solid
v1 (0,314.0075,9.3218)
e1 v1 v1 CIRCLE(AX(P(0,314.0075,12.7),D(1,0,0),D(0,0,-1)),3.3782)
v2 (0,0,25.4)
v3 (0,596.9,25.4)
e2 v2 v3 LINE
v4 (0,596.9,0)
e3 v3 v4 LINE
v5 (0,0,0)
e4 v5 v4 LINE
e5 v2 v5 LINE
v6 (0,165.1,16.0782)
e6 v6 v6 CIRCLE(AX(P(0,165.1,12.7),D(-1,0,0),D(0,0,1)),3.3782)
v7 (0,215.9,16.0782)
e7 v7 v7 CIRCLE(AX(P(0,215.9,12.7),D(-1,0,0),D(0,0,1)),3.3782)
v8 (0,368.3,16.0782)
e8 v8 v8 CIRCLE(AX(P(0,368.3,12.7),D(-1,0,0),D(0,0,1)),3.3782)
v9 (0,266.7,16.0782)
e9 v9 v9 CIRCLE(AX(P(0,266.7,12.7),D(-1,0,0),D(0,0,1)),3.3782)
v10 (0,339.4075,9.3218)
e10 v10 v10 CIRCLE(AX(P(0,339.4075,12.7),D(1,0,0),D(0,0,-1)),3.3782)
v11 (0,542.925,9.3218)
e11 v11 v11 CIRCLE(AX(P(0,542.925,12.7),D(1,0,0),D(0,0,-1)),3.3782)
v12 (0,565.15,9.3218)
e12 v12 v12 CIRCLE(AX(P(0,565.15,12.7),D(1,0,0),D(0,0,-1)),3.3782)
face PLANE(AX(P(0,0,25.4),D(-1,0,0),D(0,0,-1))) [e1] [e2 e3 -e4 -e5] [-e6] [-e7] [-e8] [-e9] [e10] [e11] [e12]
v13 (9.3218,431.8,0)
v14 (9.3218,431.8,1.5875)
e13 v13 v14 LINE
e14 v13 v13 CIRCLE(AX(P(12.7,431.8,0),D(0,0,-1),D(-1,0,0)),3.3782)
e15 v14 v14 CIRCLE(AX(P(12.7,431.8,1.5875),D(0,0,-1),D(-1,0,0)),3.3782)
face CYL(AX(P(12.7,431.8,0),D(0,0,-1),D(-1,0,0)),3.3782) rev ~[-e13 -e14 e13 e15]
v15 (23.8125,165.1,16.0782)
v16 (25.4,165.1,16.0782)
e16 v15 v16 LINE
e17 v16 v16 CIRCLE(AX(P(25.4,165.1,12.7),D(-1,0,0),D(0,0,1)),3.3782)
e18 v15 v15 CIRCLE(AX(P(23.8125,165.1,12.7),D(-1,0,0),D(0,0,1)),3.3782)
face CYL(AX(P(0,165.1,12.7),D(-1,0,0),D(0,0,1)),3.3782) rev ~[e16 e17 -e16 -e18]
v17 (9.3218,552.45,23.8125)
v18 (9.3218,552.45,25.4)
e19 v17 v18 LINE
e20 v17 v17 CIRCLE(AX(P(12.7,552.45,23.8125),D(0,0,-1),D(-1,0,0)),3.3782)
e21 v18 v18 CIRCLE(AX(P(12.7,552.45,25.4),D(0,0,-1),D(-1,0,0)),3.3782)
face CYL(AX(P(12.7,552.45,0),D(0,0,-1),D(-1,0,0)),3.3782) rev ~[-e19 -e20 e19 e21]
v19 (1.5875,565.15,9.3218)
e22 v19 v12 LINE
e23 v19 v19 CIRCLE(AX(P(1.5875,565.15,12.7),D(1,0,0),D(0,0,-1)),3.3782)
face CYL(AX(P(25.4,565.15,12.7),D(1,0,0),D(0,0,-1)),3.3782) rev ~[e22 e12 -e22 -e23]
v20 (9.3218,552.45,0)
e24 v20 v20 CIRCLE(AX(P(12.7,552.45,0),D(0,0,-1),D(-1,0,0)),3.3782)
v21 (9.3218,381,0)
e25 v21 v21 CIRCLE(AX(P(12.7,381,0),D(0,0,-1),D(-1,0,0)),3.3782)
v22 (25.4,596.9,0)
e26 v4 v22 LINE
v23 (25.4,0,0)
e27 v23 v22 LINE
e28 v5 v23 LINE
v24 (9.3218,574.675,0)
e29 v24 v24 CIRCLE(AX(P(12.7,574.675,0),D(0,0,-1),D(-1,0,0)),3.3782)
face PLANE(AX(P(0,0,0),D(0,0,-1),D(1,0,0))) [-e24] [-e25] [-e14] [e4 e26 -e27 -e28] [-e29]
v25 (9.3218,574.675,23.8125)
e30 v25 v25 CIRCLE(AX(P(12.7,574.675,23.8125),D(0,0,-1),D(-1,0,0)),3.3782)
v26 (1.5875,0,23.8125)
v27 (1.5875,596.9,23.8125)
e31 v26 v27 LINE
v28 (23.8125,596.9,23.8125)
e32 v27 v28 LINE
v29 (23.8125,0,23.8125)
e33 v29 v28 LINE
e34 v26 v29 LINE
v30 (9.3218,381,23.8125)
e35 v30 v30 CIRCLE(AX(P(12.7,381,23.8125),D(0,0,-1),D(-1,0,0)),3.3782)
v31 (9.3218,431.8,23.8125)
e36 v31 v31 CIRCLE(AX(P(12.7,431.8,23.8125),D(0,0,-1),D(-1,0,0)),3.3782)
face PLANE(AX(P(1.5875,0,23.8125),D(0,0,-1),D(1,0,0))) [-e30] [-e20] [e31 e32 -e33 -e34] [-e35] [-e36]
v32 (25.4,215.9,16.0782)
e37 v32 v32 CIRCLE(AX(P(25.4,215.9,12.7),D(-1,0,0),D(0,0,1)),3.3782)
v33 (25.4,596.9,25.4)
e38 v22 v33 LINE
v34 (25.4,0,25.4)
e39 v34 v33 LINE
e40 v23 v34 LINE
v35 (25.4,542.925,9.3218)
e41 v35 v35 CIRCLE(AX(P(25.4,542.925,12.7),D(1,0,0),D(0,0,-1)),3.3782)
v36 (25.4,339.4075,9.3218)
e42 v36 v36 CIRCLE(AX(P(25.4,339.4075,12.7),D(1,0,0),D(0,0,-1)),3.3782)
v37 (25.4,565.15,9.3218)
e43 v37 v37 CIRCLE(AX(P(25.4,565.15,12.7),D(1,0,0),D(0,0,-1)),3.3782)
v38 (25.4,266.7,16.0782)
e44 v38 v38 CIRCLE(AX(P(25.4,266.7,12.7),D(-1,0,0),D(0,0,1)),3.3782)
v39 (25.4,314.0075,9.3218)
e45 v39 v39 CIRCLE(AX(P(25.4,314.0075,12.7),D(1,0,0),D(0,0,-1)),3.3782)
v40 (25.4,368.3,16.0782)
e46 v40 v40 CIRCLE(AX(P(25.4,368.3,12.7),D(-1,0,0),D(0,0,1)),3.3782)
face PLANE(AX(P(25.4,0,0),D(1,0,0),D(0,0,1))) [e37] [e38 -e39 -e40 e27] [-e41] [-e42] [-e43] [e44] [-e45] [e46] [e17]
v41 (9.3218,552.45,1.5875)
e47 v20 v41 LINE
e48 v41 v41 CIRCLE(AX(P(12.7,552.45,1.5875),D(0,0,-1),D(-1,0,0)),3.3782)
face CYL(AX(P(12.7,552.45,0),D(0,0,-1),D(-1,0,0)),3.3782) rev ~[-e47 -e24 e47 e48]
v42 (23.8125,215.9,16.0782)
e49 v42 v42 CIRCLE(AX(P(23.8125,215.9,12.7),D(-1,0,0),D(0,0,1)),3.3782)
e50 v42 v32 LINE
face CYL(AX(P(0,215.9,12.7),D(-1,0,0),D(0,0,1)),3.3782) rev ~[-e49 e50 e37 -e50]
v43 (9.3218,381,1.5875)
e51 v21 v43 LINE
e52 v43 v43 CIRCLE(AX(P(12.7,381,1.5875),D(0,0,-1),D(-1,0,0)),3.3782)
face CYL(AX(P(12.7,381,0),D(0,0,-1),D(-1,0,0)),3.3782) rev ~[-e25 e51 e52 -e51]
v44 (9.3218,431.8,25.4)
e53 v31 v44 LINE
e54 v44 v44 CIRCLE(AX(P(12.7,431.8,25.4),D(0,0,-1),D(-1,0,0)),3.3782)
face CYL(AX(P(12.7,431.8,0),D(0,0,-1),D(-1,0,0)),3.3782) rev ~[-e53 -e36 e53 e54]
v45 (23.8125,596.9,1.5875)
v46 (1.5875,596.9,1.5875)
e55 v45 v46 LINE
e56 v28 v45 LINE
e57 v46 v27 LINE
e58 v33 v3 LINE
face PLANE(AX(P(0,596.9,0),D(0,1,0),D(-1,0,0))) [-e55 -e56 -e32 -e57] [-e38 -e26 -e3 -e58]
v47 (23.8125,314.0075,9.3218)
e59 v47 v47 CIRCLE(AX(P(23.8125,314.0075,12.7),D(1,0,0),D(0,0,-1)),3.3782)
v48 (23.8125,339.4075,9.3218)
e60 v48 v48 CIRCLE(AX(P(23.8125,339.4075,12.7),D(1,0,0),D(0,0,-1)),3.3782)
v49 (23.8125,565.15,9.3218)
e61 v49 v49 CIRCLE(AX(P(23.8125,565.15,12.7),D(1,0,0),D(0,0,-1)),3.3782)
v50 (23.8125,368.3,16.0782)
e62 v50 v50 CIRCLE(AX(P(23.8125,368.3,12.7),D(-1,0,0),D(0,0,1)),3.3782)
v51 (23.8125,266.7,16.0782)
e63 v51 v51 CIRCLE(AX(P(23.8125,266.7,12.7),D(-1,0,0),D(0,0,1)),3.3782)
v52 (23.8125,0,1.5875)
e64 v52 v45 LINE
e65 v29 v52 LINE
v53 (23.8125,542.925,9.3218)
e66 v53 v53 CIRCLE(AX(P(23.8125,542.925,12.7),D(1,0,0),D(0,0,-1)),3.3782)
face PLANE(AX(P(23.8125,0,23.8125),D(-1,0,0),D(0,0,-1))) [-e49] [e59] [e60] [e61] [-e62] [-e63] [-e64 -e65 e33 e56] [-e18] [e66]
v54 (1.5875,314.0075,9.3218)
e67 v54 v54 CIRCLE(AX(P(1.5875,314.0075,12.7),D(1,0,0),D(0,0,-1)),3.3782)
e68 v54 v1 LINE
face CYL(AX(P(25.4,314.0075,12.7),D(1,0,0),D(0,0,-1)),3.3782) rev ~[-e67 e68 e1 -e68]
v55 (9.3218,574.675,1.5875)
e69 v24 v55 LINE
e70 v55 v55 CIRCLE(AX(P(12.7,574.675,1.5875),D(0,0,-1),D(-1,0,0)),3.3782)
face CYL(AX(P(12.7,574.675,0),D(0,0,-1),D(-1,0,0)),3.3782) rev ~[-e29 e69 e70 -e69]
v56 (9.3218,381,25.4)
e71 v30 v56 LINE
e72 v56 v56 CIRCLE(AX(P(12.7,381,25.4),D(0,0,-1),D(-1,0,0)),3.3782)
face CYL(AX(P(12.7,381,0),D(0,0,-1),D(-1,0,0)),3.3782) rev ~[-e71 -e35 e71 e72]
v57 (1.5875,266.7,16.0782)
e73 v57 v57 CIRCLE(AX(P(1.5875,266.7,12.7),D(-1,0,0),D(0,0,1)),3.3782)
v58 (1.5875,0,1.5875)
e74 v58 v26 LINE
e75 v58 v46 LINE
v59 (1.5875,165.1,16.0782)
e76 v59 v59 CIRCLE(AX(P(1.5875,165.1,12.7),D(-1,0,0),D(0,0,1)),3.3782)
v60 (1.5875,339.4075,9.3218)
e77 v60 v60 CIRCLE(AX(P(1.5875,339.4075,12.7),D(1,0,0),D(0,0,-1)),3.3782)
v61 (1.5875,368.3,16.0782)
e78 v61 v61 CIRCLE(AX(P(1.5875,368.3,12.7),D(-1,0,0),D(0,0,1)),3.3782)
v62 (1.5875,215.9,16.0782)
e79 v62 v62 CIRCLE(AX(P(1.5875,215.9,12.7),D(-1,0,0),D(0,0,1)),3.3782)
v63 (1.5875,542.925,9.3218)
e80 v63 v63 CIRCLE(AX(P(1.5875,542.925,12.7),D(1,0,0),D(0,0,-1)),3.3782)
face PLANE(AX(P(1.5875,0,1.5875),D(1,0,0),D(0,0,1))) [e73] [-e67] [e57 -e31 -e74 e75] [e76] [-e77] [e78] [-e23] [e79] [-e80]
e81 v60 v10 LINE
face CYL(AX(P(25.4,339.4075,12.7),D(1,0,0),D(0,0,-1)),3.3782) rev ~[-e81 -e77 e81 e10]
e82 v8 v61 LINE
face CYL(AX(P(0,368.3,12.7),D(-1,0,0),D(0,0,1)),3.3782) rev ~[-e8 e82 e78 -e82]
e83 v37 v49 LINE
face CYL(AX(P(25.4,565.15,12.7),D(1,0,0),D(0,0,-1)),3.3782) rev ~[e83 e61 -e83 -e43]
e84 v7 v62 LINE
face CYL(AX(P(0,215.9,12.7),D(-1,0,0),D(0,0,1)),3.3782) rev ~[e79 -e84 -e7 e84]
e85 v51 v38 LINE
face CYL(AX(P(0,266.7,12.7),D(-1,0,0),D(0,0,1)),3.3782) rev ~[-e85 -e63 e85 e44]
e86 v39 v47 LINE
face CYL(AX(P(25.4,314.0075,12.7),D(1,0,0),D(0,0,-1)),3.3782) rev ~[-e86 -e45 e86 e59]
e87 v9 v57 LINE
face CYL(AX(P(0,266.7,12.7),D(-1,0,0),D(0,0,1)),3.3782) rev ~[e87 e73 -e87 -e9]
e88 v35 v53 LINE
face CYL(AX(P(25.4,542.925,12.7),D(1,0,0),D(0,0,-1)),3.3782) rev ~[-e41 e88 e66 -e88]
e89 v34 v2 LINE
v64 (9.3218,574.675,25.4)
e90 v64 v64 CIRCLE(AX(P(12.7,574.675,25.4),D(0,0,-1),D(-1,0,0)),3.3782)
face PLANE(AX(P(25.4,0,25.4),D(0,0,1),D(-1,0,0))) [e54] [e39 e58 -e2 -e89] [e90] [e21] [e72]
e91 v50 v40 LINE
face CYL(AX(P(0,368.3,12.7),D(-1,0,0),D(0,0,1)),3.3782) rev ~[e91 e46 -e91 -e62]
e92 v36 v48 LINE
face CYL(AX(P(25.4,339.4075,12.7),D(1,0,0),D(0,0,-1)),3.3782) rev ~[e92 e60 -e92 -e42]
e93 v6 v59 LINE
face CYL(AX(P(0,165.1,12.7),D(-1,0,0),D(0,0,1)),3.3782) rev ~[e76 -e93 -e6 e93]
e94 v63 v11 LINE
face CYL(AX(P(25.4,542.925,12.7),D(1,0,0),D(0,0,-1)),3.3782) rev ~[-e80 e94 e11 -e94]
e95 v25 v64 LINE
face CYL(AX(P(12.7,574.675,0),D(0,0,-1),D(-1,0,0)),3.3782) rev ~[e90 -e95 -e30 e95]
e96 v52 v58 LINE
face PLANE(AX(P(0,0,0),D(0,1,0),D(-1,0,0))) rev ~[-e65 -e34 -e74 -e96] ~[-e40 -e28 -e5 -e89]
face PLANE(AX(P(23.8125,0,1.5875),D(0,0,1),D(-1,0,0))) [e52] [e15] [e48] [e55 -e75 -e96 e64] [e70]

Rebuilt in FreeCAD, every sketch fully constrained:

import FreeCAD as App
import Part
import Sketcher

V = App.Vector
Q = App.Units.Quantity


def add_polygon(sketch, points):
    """Adds a closed chain of lines whose ends are joined by coincident constraints."""
    first, n = sketch.GeometryCount, len(points)
    for a, b in zip(points, points[1:] + points[:1]):
        sketch.addGeometry(Part.LineSegment(App.Vector(*a, 0), App.Vector(*b, 0)), False)
    for i in range(n):
        sketch.addConstraint(Sketcher.Constraint("Coincident", first + i, 2, first + (i + 1) % n, 1))

doc = App.newDocument("Part")
params = doc.addObject("Spreadsheet::Sheet", "Params")
for row, (alias, value) in enumerate([
    ("sketch1_width", "1 in"),
    ("pad1_length", "23.5 in"),
    ("sketch2_diameter", "0.266 in"),
    ("pocket1_length", "1 in"),
    ("sketch3_diameter", "0.266 in"),
    ("pocket2_length", "1 in"),
    ("sketch4_diameter", "0.266 in"),
    ("pocket3_length", "1 in"),
    ("sketch5_diameter", "0.266 in"),
    ("pocket4_length", "1.5 in"),
    ("sketch6_diameter", "0.266 in"),
    ("pocket5_length", "1 in"),
], start=1):
    params.set(f"A{row}", alias)
    params.set(f"B{row}", "=" + value)
    params.setAlias(f"B{row}", alias)

body = doc.addObject("PartDesign::Body", "Body")

# Sketch on XZ plane
sketch1 = doc.addObject("Sketcher::SketchObject", "Sketch")
body.addObject(sketch1)
sketch1.AttachmentSupport = (doc.XZ_Plane, [""])
sketch1.MapMode = "FlatFace"
add_polygon(sketch1, [(25, 0), (0, 0), (0, 25), (25, 25)])  # lines 0-3
add_polygon(sketch1, [(24, 24), (2, 24), (2, 2), (24, 2)])  # lines 4-7
sketch1.addConstraint(Sketcher.Constraint("Horizontal", 0))
sketch1.addConstraint(Sketcher.Constraint("Vertical", 1))
sketch1.addConstraint(Sketcher.Constraint("Horizontal", 2))
sketch1.addConstraint(Sketcher.Constraint("Vertical", 3))
sketch1.addConstraint(Sketcher.Constraint("Horizontal", 4))
sketch1.addConstraint(Sketcher.Constraint("Vertical", 5))
sketch1.addConstraint(Sketcher.Constraint("Horizontal", 6))
sketch1.addConstraint(Sketcher.Constraint("Vertical", 7))
sketch1.addConstraint(Sketcher.Constraint("Coincident", 0, 2, -1, 1))
sketch1.addConstraint(Sketcher.Constraint("Equal", 2, 1))
sketch1.addConstraint(Sketcher.Constraint("Equal", 6, 5))
sketch1.addConstraint(Sketcher.Constraint("DistanceX", 0, 2, 0, 1, Q("1 in")))
sketch1.addConstraint(Sketcher.Constraint("DistanceX", -1, 1, 4, 2, Q("0.0625 in")))
sketch1.addConstraint(Sketcher.Constraint("DistanceY", -1, 1, 5, 2, Q("0.0625 in")))
sketch1.addConstraint(Sketcher.Constraint("DistanceY", 4, 2, 1, 2, Q("0.0625 in")))
sketch1.setExpression("Constraints[19]", "Params.sketch1_width")
pad1 = doc.addObject("PartDesign::Pad", "Pad")
body.addObject(pad1)
pad1.Profile = sketch1
pad1.setExpression("Length", "Params.pad1_length")
pad1.Reversed = True

# Sketch on XY plane
sketch2 = doc.addObject("Sketcher::SketchObject", "Sketch001")
body.addObject(sketch2)
sketch2.AttachmentSupport = (doc.XY_Plane, [""])
sketch2.MapMode = "FlatFace"
sketch2.addGeometry(Part.Circle(V(12.7, 552.5, 0), V(0, 0, 1), 3.4), False)
sketch2.addGeometry(Part.Circle(V(12.7, 574.7, 0), V(0, 0, 1), 3.4), False)
sketch2.addConstraint(Sketcher.Constraint("Equal", 0, 1))
sketch2.addConstraint(Sketcher.Constraint("Vertical", 0, 3, 1, 3))
sketch2.addConstraint(Sketcher.Constraint("Diameter", 0, Q("0.266 in")))
sketch2.addConstraint(Sketcher.Constraint("DistanceX", -1, 1, 0, 3, Q("0.5 in")))
sketch2.addConstraint(Sketcher.Constraint("DistanceY", -1, 1, 0, 3, Q("21.75 in")))
sketch2.addConstraint(Sketcher.Constraint("DistanceY", -1, 1, 1, 3, Q("22.625 in")))
sketch2.setExpression("Constraints[2]", "Params.sketch2_diameter")
pocket1 = doc.addObject("PartDesign::Pocket", "Pocket")
body.addObject(pocket1)
pocket1.Profile = sketch2
pocket1.setExpression("Length", "Params.pocket1_length")
pocket1.Reversed = True

# Sketch on YZ plane
sketch3 = doc.addObject("Sketcher::SketchObject", "Sketch002")
body.addObject(sketch3)
sketch3.AttachmentSupport = (doc.YZ_Plane, [""])
sketch3.MapMode = "FlatFace"
sketch3.AttachmentOffset = App.Placement(V(0, 0, 1 * 25.4), App.Rotation())
sketch3.addGeometry(Part.Circle(V(565.1, 12.7, 0), V(0, 0, 1), 3.4), False)
sketch3.addGeometry(Part.Circle(V(542.9, 12.7, 0), V(0, 0, 1), 3.4), False)
sketch3.addConstraint(Sketcher.Constraint("Equal", 0, 1))
sketch3.addConstraint(Sketcher.Constraint("Horizontal", 0, 3, 1, 3))
sketch3.addConstraint(Sketcher.Constraint("Diameter", 0, Q("0.266 in")))
sketch3.addConstraint(Sketcher.Constraint("DistanceY", -1, 1, 0, 3, Q("0.5 in")))
sketch3.addConstraint(Sketcher.Constraint("DistanceX", -1, 1, 0, 3, Q("22.25 in")))
sketch3.addConstraint(Sketcher.Constraint("DistanceX", -1, 1, 1, 3, Q("21.375 in")))
sketch3.setExpression("Constraints[2]", "Params.sketch3_diameter")
pocket2 = doc.addObject("PartDesign::Pocket", "Pocket001")
body.addObject(pocket2)
pocket2.Profile = sketch3
pocket2.setExpression("Length", "Params.pocket2_length")

# Sketch on XY plane
sketch4 = doc.addObject("Sketcher::SketchObject", "Sketch003")
body.addObject(sketch4)
sketch4.AttachmentSupport = (doc.XY_Plane, [""])
sketch4.MapMode = "FlatFace"
sketch4.addGeometry(Part.Circle(V(12.7, 431.8, 0), V(0, 0, 1), 3.4), False)
sketch4.addGeometry(Part.Circle(V(12.7, 381, 0), V(0, 0, 1), 3.4), False)
sketch4.addConstraint(Sketcher.Constraint("Equal", 0, 1))
sketch4.addConstraint(Sketcher.Constraint("Vertical", 0, 3, 1, 3))
sketch4.addConstraint(Sketcher.Constraint("Diameter", 0, Q("0.266 in")))
sketch4.addConstraint(Sketcher.Constraint("DistanceY", -1, 1, 0, 3, Q("17 in")))
sketch4.addConstraint(Sketcher.Constraint("DistanceY", -1, 1, 1, 3, Q("15 in")))
sketch4.addConstraint(Sketcher.Constraint("DistanceX", -1, 1, 0, 3, Q("0.5 in")))
sketch4.setExpression("Constraints[2]", "Params.sketch4_diameter")
pocket3 = doc.addObject("PartDesign::Pocket", "Pocket002")
body.addObject(pocket3)
pocket3.Profile = sketch4
pocket3.setExpression("Length", "Params.pocket3_length")
pocket3.Reversed = True

# Sketch on YZ plane
sketch5 = doc.addObject("Sketcher::SketchObject", "Sketch004")
body.addObject(sketch5)
sketch5.AttachmentSupport = (doc.YZ_Plane, [""])
sketch5.MapMode = "FlatFace"
sketch5.AttachmentOffset = App.Placement(V(0, 0, 1 * 25.4), App.Rotation())
sketch5.addGeometry(Part.Circle(V(339.4, 12.7, 0), V(0, 0, 1), 3.4), False)
sketch5.addGeometry(Part.Circle(V(314, 12.7, 0), V(0, 0, 1), 3.4), False)
sketch5.addConstraint(Sketcher.Constraint("Equal", 0, 1))
sketch5.addConstraint(Sketcher.Constraint("Horizontal", 0, 3, 1, 3))
sketch5.addConstraint(Sketcher.Constraint("Diameter", 0, Q("0.266 in")))
sketch5.addConstraint(Sketcher.Constraint("DistanceX", 1, 3, 0, 3, Q("1 in")))
sketch5.addConstraint(Sketcher.Constraint("DistanceY", -1, 1, 0, 3, Q("0.5 in")))
sketch5.addConstraint(Sketcher.Constraint("DistanceX", -1, 1, 0, 3, Q("13.3625 in")))
sketch5.setExpression("Constraints[2]", "Params.sketch5_diameter")
pocket4 = doc.addObject("PartDesign::Pocket", "Pocket003")
body.addObject(pocket4)
pocket4.Profile = sketch5
pocket4.setExpression("Length", "Params.pocket4_length")

# Sketch on YZ plane
sketch6 = doc.addObject("Sketcher::SketchObject", "Sketch005")
body.addObject(sketch6)
sketch6.AttachmentSupport = (doc.YZ_Plane, [""])
sketch6.MapMode = "FlatFace"
sketch6.addGeometry(Part.Circle(V(368.3, 12.7, 0), V(0, 0, 1), 3.4), False)
sketch6.addGeometry(Part.Circle(V(266.7, 12.7, 0), V(0, 0, 1), 3.4), False)
sketch6.addGeometry(Part.Circle(V(215.9, 12.7, 0), V(0, 0, 1), 3.4), False)
sketch6.addGeometry(Part.Circle(V(165.1, 12.7, 0), V(0, 0, 1), 3.4), False)
sketch6.addConstraint(Sketcher.Constraint("Equal", 0, 1))
sketch6.addConstraint(Sketcher.Constraint("Equal", 1, 2))
sketch6.addConstraint(Sketcher.Constraint("Equal", 2, 3))
sketch6.addConstraint(Sketcher.Constraint("Horizontal", 0, 3, 1, 3))
sketch6.addConstraint(Sketcher.Constraint("Horizontal", 1, 3, 2, 3))
sketch6.addConstraint(Sketcher.Constraint("Horizontal", 2, 3, 3, 3))
sketch6.addConstraint(Sketcher.Constraint("Diameter", 0, Q("0.266 in")))
sketch6.addConstraint(Sketcher.Constraint("DistanceY", -1, 1, 0, 3, Q("0.5 in")))
sketch6.addConstraint(Sketcher.Constraint("DistanceX", 1, 3, 0, 3, Q("4 in")))
sketch6.addConstraint(Sketcher.Constraint("DistanceX", 2, 3, 1, 3, Q("2 in")))
sketch6.addConstraint(Sketcher.Constraint("DistanceX", 3, 3, 2, 3, Q("2 in")))
sketch6.addConstraint(Sketcher.Constraint("DistanceX", -1, 1, 0, 3, Q("14.5 in")))
sketch6.setExpression("Constraints[6]", "Params.sketch6_diameter")
pocket5 = doc.addObject("PartDesign::Pocket", "Pocket004")
body.addObject(pocket5)
pocket5.Profile = sketch6
pocket5.setExpression("Length", "Params.pocket5_length")
pocket5.Reversed = True

doc.recompute()
